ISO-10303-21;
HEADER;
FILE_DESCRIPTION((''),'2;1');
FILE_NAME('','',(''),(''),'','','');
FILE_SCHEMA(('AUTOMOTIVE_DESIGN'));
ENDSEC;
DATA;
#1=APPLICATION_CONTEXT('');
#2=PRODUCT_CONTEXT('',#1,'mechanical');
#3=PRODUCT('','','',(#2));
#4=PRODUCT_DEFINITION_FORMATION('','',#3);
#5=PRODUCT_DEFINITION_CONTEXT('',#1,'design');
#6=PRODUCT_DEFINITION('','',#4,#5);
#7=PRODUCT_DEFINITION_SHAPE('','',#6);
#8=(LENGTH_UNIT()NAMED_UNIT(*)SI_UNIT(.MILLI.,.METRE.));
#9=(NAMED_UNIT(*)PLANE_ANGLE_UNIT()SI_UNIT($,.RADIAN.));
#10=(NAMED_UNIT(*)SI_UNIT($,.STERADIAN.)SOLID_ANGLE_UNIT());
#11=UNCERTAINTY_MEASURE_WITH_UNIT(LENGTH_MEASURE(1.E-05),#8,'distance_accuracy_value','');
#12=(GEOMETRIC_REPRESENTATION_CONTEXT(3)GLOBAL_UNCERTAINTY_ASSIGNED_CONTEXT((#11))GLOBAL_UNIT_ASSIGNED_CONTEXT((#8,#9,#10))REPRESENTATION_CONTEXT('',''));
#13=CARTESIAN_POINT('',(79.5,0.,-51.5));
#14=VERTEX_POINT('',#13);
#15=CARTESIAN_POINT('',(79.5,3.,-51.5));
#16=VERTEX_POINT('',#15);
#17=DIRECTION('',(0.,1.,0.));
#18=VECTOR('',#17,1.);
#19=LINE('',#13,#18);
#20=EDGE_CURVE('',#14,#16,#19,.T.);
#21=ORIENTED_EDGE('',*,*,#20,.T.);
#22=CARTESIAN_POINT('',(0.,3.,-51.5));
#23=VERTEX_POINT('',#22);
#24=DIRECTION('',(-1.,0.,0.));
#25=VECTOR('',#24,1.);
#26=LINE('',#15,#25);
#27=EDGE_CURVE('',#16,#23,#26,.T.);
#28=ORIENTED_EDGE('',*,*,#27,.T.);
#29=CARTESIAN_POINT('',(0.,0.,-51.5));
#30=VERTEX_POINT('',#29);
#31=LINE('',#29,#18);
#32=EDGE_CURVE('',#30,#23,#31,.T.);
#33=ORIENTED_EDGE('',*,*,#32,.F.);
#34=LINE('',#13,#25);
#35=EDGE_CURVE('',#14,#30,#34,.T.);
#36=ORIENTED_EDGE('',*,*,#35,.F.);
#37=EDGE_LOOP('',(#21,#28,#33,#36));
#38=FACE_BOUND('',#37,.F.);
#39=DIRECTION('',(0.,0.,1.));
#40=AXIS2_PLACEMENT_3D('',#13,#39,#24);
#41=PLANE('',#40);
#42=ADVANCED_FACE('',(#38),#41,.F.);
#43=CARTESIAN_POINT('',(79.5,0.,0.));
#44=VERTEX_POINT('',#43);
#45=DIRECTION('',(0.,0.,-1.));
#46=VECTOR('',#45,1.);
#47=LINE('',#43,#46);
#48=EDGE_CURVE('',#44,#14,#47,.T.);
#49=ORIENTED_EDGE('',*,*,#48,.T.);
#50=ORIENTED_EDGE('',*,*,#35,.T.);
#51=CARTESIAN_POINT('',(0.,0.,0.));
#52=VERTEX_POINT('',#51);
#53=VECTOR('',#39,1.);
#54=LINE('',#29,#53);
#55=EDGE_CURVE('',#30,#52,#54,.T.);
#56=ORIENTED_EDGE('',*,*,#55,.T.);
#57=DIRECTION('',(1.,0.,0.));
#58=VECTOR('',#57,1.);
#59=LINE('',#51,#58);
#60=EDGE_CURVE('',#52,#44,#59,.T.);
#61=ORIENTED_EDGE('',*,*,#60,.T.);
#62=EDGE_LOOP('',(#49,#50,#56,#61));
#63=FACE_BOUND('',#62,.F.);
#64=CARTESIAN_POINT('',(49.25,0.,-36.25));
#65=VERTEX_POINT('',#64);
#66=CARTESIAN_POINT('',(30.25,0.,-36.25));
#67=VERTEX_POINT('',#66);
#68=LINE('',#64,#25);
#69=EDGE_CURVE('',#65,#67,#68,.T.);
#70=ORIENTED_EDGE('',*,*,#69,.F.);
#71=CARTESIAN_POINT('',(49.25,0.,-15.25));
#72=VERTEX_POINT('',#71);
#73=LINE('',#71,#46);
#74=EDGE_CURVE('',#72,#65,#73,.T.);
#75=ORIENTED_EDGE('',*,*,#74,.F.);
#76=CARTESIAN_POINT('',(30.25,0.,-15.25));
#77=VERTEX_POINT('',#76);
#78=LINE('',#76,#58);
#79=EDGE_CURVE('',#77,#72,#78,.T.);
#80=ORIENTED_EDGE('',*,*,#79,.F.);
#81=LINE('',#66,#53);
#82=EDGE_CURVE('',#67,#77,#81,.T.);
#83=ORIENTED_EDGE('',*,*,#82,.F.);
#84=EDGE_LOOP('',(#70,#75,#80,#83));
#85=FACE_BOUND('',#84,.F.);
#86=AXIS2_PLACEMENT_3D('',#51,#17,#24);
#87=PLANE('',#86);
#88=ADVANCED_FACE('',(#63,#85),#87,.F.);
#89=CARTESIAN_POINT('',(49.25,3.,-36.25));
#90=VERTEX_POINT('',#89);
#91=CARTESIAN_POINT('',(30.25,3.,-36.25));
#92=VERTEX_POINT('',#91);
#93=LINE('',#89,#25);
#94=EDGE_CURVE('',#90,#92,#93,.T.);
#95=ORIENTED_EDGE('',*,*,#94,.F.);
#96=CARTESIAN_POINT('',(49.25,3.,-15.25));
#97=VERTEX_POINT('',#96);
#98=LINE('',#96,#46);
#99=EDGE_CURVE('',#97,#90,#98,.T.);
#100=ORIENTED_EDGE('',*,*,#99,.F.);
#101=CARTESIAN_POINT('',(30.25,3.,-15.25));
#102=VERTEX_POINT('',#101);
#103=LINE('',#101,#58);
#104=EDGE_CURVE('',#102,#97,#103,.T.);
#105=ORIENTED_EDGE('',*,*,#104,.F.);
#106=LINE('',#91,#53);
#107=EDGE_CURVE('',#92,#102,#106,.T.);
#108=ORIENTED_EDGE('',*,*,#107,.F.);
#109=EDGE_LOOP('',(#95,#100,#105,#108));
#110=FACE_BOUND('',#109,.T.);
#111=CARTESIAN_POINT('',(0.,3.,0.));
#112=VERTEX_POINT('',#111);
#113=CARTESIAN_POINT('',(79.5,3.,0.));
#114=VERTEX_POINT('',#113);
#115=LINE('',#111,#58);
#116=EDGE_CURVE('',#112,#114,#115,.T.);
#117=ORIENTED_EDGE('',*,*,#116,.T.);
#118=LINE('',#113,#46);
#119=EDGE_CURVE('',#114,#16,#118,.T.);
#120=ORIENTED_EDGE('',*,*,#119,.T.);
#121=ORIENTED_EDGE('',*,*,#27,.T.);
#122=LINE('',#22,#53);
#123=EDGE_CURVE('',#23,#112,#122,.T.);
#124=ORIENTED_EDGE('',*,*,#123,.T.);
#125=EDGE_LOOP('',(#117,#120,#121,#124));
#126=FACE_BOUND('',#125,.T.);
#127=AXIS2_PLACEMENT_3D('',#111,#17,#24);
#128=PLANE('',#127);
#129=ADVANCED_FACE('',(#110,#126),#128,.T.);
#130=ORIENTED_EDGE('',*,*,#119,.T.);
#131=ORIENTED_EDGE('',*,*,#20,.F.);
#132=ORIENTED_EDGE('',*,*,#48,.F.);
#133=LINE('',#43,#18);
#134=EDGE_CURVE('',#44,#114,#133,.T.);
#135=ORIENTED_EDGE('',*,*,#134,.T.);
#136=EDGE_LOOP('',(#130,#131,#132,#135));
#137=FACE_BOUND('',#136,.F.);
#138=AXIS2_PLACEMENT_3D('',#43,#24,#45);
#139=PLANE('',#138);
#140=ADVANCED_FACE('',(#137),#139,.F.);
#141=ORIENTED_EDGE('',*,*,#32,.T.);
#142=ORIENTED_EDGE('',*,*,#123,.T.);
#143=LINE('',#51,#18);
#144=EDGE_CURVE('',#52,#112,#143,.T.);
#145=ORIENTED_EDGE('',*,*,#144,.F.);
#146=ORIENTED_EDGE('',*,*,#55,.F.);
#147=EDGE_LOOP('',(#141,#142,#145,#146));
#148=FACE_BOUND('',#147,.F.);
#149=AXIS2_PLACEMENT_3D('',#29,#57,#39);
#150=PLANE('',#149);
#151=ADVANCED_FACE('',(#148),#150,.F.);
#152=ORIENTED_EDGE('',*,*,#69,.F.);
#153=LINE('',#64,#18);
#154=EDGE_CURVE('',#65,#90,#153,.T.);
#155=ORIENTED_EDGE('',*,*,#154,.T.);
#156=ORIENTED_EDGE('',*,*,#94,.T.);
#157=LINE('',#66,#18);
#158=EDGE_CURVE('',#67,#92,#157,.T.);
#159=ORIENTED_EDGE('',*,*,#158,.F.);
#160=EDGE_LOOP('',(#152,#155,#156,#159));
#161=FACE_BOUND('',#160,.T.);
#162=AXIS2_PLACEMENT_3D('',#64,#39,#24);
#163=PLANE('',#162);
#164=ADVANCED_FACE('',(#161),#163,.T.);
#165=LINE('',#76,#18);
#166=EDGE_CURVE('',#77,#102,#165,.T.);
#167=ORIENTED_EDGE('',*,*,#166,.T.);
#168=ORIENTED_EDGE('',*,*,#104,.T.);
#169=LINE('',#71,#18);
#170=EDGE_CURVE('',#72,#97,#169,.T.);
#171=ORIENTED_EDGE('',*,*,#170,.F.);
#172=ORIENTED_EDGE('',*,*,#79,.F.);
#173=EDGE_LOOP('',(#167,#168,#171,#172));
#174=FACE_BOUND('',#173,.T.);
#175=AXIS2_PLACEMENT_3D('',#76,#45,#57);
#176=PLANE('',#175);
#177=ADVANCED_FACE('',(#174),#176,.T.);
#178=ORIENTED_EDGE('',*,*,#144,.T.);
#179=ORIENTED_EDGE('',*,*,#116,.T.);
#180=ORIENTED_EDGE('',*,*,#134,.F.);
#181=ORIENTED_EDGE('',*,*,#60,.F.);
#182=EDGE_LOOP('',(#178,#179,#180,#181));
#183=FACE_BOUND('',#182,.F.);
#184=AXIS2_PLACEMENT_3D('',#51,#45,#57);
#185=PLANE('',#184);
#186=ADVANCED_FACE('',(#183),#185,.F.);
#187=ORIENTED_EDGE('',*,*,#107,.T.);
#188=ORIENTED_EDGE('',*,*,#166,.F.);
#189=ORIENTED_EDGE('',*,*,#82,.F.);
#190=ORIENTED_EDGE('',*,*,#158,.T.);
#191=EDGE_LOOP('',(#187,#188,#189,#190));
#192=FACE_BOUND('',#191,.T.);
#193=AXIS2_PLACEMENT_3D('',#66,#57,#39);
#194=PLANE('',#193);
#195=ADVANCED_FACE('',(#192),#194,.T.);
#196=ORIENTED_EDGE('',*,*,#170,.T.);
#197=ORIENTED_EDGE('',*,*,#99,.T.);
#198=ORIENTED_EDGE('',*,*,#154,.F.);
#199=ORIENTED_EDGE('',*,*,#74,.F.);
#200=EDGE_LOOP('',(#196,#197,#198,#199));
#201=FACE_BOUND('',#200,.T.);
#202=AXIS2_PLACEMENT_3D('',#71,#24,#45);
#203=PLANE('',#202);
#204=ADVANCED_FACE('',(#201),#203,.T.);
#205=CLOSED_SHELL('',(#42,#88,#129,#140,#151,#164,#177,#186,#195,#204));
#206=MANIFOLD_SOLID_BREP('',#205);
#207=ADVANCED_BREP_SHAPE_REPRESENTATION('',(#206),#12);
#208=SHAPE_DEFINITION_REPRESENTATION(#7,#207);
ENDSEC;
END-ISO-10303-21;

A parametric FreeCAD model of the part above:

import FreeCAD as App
import Part
import Sketcher

doc = App.newDocument("Part")
body = doc.addObject("PartDesign::Body", "Body")

# Sketch on XZ plane
sketch1 = body.newObject("Sketcher::SketchObject", "Sketch")
sketch1.AttachmentSupport = (doc.getObject("XZ_Plane"), [""])
sketch1.MapMode = "FlatFace"
sketch1.addGeometry([
    Part.LineSegment(App.Vector(0, -51.5, 0), App.Vector(0, 0, 0)),  # 0
    Part.LineSegment(App.Vector(0, 0, 0), App.Vector(79.5, 0, 0)),  # 1
    Part.LineSegment(App.Vector(79.5, 0, 0), App.Vector(79.5, -51.5, 0)),  # 2
    Part.LineSegment(App.Vector(79.5, -51.5, 0), App.Vector(0, -51.5, 0)),  # 3
    Part.LineSegment(App.Vector(49.25, -15.25, 0), App.Vector(30.25, -15.25, 0)),  # 4
    Part.LineSegment(App.Vector(30.25, -15.25, 0), App.Vector(30.25, -36.25, 0)),  # 5
    Part.LineSegment(App.Vector(30.25, -36.25, 0), App.Vector(49.25, -36.25, 0)),  # 6
    Part.LineSegment(App.Vector(49.25, -36.25, 0), App.Vector(49.25, -15.25, 0)),  # 7
], False)
sketch1.addConstraint([
    Sketcher.Constraint("Coincident", 0, 2, 1, 1),
    Sketcher.Constraint("Coincident", 1, 2, 2, 1),
    Sketcher.Constraint("Coincident", 2, 2, 3, 1),
    Sketcher.Constraint("Coincident", 3, 2, 0, 1),
    Sketcher.Constraint("Coincident", 4, 2, 5, 1),
    Sketcher.Constraint("Coincident", 5, 2, 6, 1),
    Sketcher.Constraint("Coincident", 6, 2, 7, 1),
    Sketcher.Constraint("Coincident", 7, 2, 4, 1),
    Sketcher.Constraint("Vertical", 0),
    Sketcher.Constraint("Horizontal", 1),
    Sketcher.Constraint("Vertical", 2),
    Sketcher.Constraint("Horizontal", 3),
    Sketcher.Constraint("Horizontal", 4),
    Sketcher.Constraint("Vertical", 5),
    Sketcher.Constraint("Horizontal", 6),
    Sketcher.Constraint("Vertical", 7),
    Sketcher.Constraint("Coincident", 0, 2, -1, 1),
    Sketcher.Constraint("DistanceX", 4, 2, 4, 1, 19.0),
    Sketcher.Constraint("DistanceY", 5, 2, 5, 1, 21.0),
    Sketcher.Constraint("DistanceX", 1, 1, 1, 2, 79.5),
    Sketcher.Constraint("DistanceY", 0, 1, 0, 2, 51.5),
    Sketcher.Constraint("DistanceX", -1, 1, 4, 2, 30.25),
    Sketcher.Constraint("DistanceY", 4, 2, -1, 1, 15.25),
])
pad1 = body.newObject("PartDesign::Pad", "Pad")
pad1.Profile = sketch1
pad1.Length = 3
pad1.Reversed = True

doc.recompute()
